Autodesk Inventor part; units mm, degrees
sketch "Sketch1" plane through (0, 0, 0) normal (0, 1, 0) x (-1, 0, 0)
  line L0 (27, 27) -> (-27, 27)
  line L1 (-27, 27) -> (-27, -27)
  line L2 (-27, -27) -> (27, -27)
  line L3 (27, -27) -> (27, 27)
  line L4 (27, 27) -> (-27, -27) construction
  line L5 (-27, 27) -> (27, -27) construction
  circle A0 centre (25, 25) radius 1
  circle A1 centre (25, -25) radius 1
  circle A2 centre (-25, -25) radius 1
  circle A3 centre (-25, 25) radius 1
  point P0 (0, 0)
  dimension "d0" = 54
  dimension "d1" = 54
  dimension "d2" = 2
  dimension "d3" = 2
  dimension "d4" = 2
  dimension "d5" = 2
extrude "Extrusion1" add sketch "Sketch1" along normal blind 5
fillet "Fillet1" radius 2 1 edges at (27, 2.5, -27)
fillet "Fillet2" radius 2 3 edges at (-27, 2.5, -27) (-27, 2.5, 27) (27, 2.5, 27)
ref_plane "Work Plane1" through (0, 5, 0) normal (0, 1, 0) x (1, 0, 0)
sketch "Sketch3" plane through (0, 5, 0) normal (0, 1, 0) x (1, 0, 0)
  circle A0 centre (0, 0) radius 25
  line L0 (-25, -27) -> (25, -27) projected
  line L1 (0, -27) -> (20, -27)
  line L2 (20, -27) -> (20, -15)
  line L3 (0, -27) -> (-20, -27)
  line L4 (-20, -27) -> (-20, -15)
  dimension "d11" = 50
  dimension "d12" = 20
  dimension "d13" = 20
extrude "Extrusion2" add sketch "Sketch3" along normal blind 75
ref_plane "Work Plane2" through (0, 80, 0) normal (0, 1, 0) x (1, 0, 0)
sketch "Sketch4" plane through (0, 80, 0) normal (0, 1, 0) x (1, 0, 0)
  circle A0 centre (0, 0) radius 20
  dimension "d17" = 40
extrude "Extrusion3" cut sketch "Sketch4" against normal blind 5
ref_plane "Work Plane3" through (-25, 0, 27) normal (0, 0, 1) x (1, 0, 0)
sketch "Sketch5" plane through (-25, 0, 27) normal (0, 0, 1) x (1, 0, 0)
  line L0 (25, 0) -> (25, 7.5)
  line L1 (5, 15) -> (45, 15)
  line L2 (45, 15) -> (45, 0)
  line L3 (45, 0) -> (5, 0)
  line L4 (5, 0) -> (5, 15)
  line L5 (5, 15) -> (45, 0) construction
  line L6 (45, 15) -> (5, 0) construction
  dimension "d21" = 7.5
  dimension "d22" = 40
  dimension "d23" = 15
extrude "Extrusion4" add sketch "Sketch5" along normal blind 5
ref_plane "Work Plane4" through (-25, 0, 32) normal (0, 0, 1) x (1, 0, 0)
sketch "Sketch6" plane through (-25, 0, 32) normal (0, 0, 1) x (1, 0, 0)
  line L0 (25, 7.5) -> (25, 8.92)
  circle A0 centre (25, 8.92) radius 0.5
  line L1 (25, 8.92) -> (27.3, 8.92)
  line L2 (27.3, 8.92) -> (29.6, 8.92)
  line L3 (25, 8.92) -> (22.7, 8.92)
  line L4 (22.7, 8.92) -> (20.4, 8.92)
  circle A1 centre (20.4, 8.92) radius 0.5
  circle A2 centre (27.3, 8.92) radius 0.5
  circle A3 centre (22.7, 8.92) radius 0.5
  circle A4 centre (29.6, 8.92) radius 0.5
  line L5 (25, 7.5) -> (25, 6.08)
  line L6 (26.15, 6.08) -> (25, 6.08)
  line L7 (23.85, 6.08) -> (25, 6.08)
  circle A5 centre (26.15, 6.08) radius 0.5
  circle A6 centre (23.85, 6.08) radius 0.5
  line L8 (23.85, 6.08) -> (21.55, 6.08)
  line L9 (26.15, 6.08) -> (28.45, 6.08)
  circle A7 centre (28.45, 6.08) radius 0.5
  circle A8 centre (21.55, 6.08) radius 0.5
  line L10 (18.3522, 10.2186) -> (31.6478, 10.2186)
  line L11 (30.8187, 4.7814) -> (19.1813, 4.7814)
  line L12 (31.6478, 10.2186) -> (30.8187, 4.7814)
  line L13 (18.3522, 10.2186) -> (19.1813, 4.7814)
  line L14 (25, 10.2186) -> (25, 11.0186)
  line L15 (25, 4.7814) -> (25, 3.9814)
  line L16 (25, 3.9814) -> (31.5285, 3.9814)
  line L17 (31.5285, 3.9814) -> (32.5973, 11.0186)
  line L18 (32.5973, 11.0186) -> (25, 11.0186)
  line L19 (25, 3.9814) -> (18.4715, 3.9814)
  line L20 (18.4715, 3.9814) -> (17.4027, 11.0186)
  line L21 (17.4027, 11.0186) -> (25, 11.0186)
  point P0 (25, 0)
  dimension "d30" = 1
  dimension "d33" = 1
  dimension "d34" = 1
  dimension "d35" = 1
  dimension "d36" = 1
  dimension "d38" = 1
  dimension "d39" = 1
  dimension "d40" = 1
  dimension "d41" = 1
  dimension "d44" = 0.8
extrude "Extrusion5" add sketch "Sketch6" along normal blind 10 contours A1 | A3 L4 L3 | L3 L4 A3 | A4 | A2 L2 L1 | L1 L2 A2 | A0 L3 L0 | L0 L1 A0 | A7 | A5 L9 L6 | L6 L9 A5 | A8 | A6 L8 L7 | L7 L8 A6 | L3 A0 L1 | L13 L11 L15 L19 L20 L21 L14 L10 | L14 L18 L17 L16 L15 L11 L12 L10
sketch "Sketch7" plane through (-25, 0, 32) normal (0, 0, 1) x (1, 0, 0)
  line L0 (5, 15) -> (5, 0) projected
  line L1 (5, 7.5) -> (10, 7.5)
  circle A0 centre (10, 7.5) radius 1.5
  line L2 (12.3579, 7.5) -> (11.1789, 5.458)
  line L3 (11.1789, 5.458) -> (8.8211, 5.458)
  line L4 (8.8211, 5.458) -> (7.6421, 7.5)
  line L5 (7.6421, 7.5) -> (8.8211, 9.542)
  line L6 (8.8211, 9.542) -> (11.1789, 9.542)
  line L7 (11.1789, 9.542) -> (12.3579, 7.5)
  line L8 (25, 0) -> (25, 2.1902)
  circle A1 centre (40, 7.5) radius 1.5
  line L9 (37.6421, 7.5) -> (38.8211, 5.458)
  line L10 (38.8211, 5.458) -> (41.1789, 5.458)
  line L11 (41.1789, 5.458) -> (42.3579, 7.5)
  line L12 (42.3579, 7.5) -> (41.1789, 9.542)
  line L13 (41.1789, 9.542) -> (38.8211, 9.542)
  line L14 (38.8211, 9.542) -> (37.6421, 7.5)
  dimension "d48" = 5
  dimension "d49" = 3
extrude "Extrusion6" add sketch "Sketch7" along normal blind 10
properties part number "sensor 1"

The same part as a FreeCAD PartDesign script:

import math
import FreeCAD as App
import Part
import Sketcher
Q = App.Units.Quantity


def edges_at(feature, points):
    """Names of the edges that pass closest to the given points."""
    edges = feature.Shape.Edges
    near = lambda p: min(range(len(edges)), key=lambda i: edges[i].distToShape(Part.Vertex(*p))[0])
    return sorted({f"Edge{near(p) + 1}" for p in points})

doc = App.newDocument("Part")
params = doc.addObject("Spreadsheet::Sheet", "Params")
for row, (alias, value) in enumerate([
    ("sketch1_diameter", "2 mm"),
    ("sketch1_width", "54 mm"),
    ("pad1_length", "5 mm"),
    ("fillet_radius", "2 mm"),
    ("fillet2_radius", "2 mm"),
    ("sketch2_radius", "25 mm"),
    ("sketch2_height", "12 mm"),
    ("pad2_length", "75 mm"),
    ("sketch3_diameter", "40 mm"),
    ("pocket1_length", "5 mm"),
    ("sketch4_width", "40 mm"),
    ("sketch4_height", "15 mm"),
    ("pad3_length", "5 mm"),
    ("sketch5_diameter", "1 mm"),
    ("sketch5_length", "5.5 mm"),
    ("pad4_length", "10 mm"),
    ("sketch6_diameter", "3 mm"),
    ("pad5_length", "10 mm"),
], start=1):
    params.set(f"A{row}", alias)
    params.set(f"B{row}", "=" + value)
    params.setAlias(f"B{row}", alias)

body = doc.addObject("PartDesign::Body", "Body")

# Sketch on XZ plane
sketch1 = body.newObject("Sketcher::SketchObject", "Sketch")
sketch1.AttachmentSupport = (doc.getObject("XZ_Plane"), [""])
sketch1.MapMode = "FlatFace"
sketch1.addGeometry(Part.LineSegment(App.Vector(-27, -27, 0), App.Vector(-27, 27, 0)), False)
sketch1.addGeometry(Part.LineSegment(App.Vector(-27, 27, 0), App.Vector(27, 27, 0)), False)
sketch1.addGeometry(Part.LineSegment(App.Vector(27, 27, 0), App.Vector(27, -27, 0)), False)
sketch1.addGeometry(Part.LineSegment(App.Vector(27, -27, 0), App.Vector(-27, -27, 0)), False)
sketch1.addGeometry(Part.Circle(App.Vector(25, -25, 0), App.Vector(0, 0, 1), 1), False)
sketch1.addGeometry(Part.Circle(App.Vector(-25, -25, 0), App.Vector(0, 0, 1), 1), False)
sketch1.addGeometry(Part.Circle(App.Vector(25, 25, 0), App.Vector(0, 0, 1), 1), False)
sketch1.addGeometry(Part.Circle(App.Vector(-25, 25, 0), App.Vector(0, 0, 1), 1), False)
sketch1.addConstraint(Sketcher.Constraint("Coincident", 0, 2, 1, 1))
sketch1.addConstraint(Sketcher.Constraint("Coincident", 1, 2, 2, 1))
sketch1.addConstraint(Sketcher.Constraint("Coincident", 2, 2, 3, 1))
sketch1.addConstraint(Sketcher.Constraint("Coincident", 3, 2, 0, 1))
sketch1.addConstraint(Sketcher.Constraint("Vertical", 0))
sketch1.addConstraint(Sketcher.Constraint("Horizontal", 1))
sketch1.addConstraint(Sketcher.Constraint("Vertical", 2))
sketch1.addConstraint(Sketcher.Constraint("Horizontal", 3))
sketch1.addConstraint(Sketcher.Constraint("Equal", 4, 5))
sketch1.addConstraint(Sketcher.Constraint("Equal", 5, 6))
sketch1.addConstraint(Sketcher.Constraint("Equal", 6, 7))
sketch1.addConstraint(Sketcher.Constraint("Symmetric", 5, 3, 6, 3, -1, 1))
sketch1.addConstraint(Sketcher.Constraint("Symmetric", 4, 3, 7, 3, -1, 1))
sketch1.addConstraint(Sketcher.Constraint("Symmetric", 0, 2, 2, 2, -1, 1))
sketch1.addConstraint(Sketcher.Constraint("Symmetric", 4, 3, 5, 3, -2))
sketch1.addConstraint(Sketcher.Constraint("Equal", 3, 0))
sketch1.addConstraint(Sketcher.Constraint("Diameter", 4, Q("2 mm")))
sketch1.addConstraint(Sketcher.Constraint("DistanceX", 1, 1, 1, 2, Q("54 mm")))
sketch1.addConstraint(Sketcher.Constraint("DistanceX", 0, 2, 7, 3, Q("2 mm")))
sketch1.addConstraint(Sketcher.Constraint("DistanceY", 7, 3, 0, 2, Q("2 mm")))
sketch1.setExpression("Constraints[16]", "Params.sketch1_diameter")
sketch1.setExpression("Constraints[17]", "Params.sketch1_width")
pad1 = body.newObject("PartDesign::Pad", "Pad")
pad1.Profile = sketch1
pad1.setExpression("Length", "Params.pad1_length")
pad1.Reversed = True
doc.recompute()

fillet = body.newObject("PartDesign::Fillet", "Fillet")
fillet.Base = (pad1, edges_at(pad1, [(27, 2.5, -27)]))
fillet.setExpression("Radius", "Params.fillet_radius")
doc.recompute()

fillet2 = body.newObject("PartDesign::Fillet", "Fillet001")
fillet2.Base = (fillet, edges_at(fillet, [(-27, 2.5, -27), (-27, 2.5, 27), (27, 2.5, 27)]))
fillet2.setExpression("Radius", "Params.fillet2_radius")

# Sketch on XZ plane
sketch2 = body.newObject("Sketcher::SketchObject", "Sketch001")
sketch2.AttachmentSupport = (doc.getObject("XZ_Plane"), [""])
sketch2.MapMode = "FlatFace"
sketch2.AttachmentOffset = App.Placement(App.Vector(0, 0, -5), App.Rotation())
sketch2.addGeometry(Part.ArcOfCircle(Part.Circle(App.Vector(0, 0, 0), App.Vector(0, 0, 1), 25), math.radians(143), math.radians(397)), False)
sketch2.addGeometry(Part.LineSegment(App.Vector(-20, 15, 0), App.Vector(-20, 27, 0)), False)
sketch2.addGeometry(Part.LineSegment(App.Vector(-20, 27, 0), App.Vector(20, 27, 0)), False)
sketch2.addGeometry(Part.LineSegment(App.Vector(20, 27, 0), App.Vector(20, 15, 0)), False)
sketch2.addConstraint(Sketcher.Constraint("Coincident", 0, 1, 1, 1))
sketch2.addConstraint(Sketcher.Constraint("Coincident", 1, 2, 2, 1))
sketch2.addConstraint(Sketcher.Constraint("Coincident", 2, 2, 3, 1))
sketch2.addConstraint(Sketcher.Constraint("Coincident", 3, 2, 0, 2))
sketch2.addConstraint(Sketcher.Constraint("Vertical", 1))
sketch2.addConstraint(Sketcher.Constraint("Horizontal", 2))
sketch2.addConstraint(Sketcher.Constraint("Vertical", 3))
sketch2.addConstraint(Sketcher.Constraint("Coincident", 0, 3, -1, 1))
sketch2.addConstraint(Sketcher.Constraint("Horizontal", 0, 1, 3, 2))
sketch2.addConstraint(Sketcher.Constraint("Radius", 0, Q("25 mm")))
sketch2.addConstraint(Sketcher.Constraint("DistanceX", 0, 1, -1, 1, Q("20 mm")))
sketch2.addConstraint(Sketcher.Constraint("DistanceY", 1, 1, 1, 2, Q("12 mm")))
sketch2.setExpression("Constraints[9]", "Params.sketch2_radius")
sketch2.setExpression("Constraints[11]", "Params.sketch2_height")
pad2 = body.newObject("PartDesign::Pad", "Pad001")
pad2.Profile = sketch2
pad2.setExpression("Length", "Params.pad2_length")
pad2.Reversed = True

# Sketch on XZ plane
sketch3 = body.newObject("Sketcher::SketchObject", "Sketch002")
sketch3.AttachmentSupport = (doc.getObject("XZ_Plane"), [""])
sketch3.MapMode = "FlatFace"
sketch3.AttachmentOffset = App.Placement(App.Vector(0, 0, -80), App.Rotation())
sketch3.addGeometry(Part.Circle(App.Vector(0, 0, 0), App.Vector(0, 0, 1), 20), False)
sketch3.addConstraint(Sketcher.Constraint("Coincident", 0, 3, -1, 1))
sketch3.addConstraint(Sketcher.Constraint("Diameter", 0, Q("40 mm")))
sketch3.setExpression("Constraints[1]", "Params.sketch3_diameter")
pocket1 = body.newObject("PartDesign::Pocket", "Pocket")
pocket1.Profile = sketch3
pocket1.setExpression("Length", "Params.pocket1_length")
pocket1.Reversed = True

# Sketch on XY plane
sketch4 = body.newObject("Sketcher::SketchObject", "Sketch003")
sketch4.AttachmentSupport = (doc.getObject("XY_Plane"), [""])
sketch4.MapMode = "FlatFace"
sketch4.AttachmentOffset = App.Placement(App.Vector(0, 0, 27), App.Rotation())
sketch4.addGeometry(Part.LineSegment(App.Vector(20, 15, 0), App.Vector(-20, 15, 0)), False)
sketch4.addGeometry(Part.LineSegment(App.Vector(-20, 15, 0), App.Vector(-20, 0, 0)), False)
sketch4.addGeometry(Part.LineSegment(App.Vector(-20, 0, 0), App.Vector(20, 0, 0)), False)
sketch4.addGeometry(Part.LineSegment(App.Vector(20, 0, 0), App.Vector(20, 15, 0)), False)
sketch4.addConstraint(Sketcher.Constraint("Coincident", 0, 2, 1, 1))
sketch4.addConstraint(Sketcher.Constraint("Coincident", 1, 2, 2, 1))
sketch4.addConstraint(Sketcher.Constraint("Coincident", 2, 2, 3, 1))
sketch4.addConstraint(Sketcher.Constraint("Coincident", 3, 2, 0, 1))
sketch4.addConstraint(Sketcher.Constraint("Horizontal", 0))
sketch4.addConstraint(Sketcher.Constraint("Vertical", 1))
sketch4.addConstraint(Sketcher.Constraint("Horizontal", 2))
sketch4.addConstraint(Sketcher.Constraint("Vertical", 3))
sketch4.addConstraint(Sketcher.Constraint("Symmetric", 1, 2, 2, 2, -1, 1))
sketch4.addConstraint(Sketcher.Constraint("DistanceX", 0, 2, 0, 1, Q("40 mm")))
sketch4.addConstraint(Sketcher.Constraint("DistanceY", 1, 2, 1, 1, Q("15 mm")))
sketch4.setExpression("Constraints[9]", "Params.sketch4_width")
sketch4.setExpression("Constraints[10]", "Params.sketch4_height")
pad3 = body.newObject("PartDesign::Pad", "Pad002")
pad3.Profile = sketch4
pad3.setExpression("Length", "Params.pad3_length")

# Sketch on XY plane
sketch5 = body.newObject("Sketcher::SketchObject", "Sketch004")
sketch5.AttachmentSupport = (doc.getObject("XY_Plane"), [""])
sketch5.MapMode = "FlatFace"
sketch5.AttachmentOffset = App.Placement(App.Vector(0, 0, 32), App.Rotation())
sketch5.addGeometry(Part.Circle(App.Vector(-4.6, 8.9, 0), App.Vector(0, 0, 1), 0.5), False)
sketch5.addGeometry(Part.Circle(App.Vector(-2.3, 8.9, 0), App.Vector(0, 0, 1), 0.5), False)
sketch5.addGeometry(Part.Circle(App.Vector(4.6, 8.9, 0), App.Vector(0, 0, 1), 0.5), False)
sketch5.addGeometry(Part.Circle(App.Vector(2.3, 8.9, 0), App.Vector(0, 0, 1), 0.5), False)
sketch5.addGeometry(Part.Circle(App.Vector(0, 8.9, 0), App.Vector(0, 0, 1), 0.5), False)
sketch5.addGeometry(Part.Circle(App.Vector(3.5, 6.1, 0), App.Vector(0, 0, 1), 0.5), False)
sketch5.addGeometry(Part.Circle(App.Vector(1.1, 6.1, 0), App.Vector(0, 0, 1), 0.5), False)
sketch5.addGeometry(Part.Circle(App.Vector(-3.5, 6.1, 0), App.Vector(0, 0, 1), 0.5), False)
sketch5.addGeometry(Part.Circle(App.Vector(-1.1, 6.1, 0), App.Vector(0, 0, 1), 0.5), False)
sketch5.addGeometry(Part.LineSegment(App.Vector(-6.5, 4, 0), App.Vector(6.5, 4, 0)), False)
sketch5.addGeometry(Part.LineSegment(App.Vector(6.5, 4, 0), App.Vector(7.6, 11, 0)), False)
sketch5.addGeometry(Part.LineSegment(App.Vector(7.6, 11, 0), App.Vector(-7.6, 11, 0)), False)
sketch5.addGeometry(Part.LineSegment(App.Vector(-7.6, 11, 0), App.Vector(-6.5, 4, 0)), False)
sketch5.addGeometry(Part.LineSegment(App.Vector(-5.8, 4.8, 0), App.Vector(-6.6, 10.2, 0)), False)
sketch5.addGeometry(Part.LineSegment(App.Vector(-6.6, 10.2, 0), App.Vector(6.6, 10.2, 0)), False)
sketch5.addGeometry(Part.LineSegment(App.Vector(6.6, 10.2, 0), App.Vector(5.8, 4.8, 0)), False)
sketch5.addGeometry(Part.LineSegment(App.Vector(5.8, 4.8, 0), App.Vector(-5.8, 4.8, 0)), False)
sketch5.addConstraint(Sketcher.Constraint("Coincident", 9, 2, 10, 1))
sketch5.addConstraint(Sketcher.Constraint("Coincident", 10, 2, 11, 1))
sketch5.addConstraint(Sketcher.Constraint("Coincident", 11, 2, 12, 1))
sketch5.addConstraint(Sketcher.Constraint("Coincident", 12, 2, 9, 1))
sketch5.addConstraint(Sketcher.Constraint("Coincident", 13, 2, 14, 1))
sketch5.addConstraint(Sketcher.Constraint("Coincident", 14, 2, 15, 1))
sketch5.addConstraint(Sketcher.Constraint("Coincident", 15, 2, 16, 1))
sketch5.addConstraint(Sketcher.Constraint("Coincident", 16, 2, 13, 1))
sketch5.addConstraint(Sketcher.Constraint("Horizontal", 9))
sketch5.addConstraint(Sketcher.Constraint("Horizontal", 11))
sketch5.addConstraint(Sketcher.Constraint("Horizontal", 14))
sketch5.addConstraint(Sketcher.Constraint("Horizontal", 16))
sketch5.addConstraint(Sketcher.Constraint("Equal", 0, 1))
sketch5.addConstraint(Sketcher.Constraint("Equal", 1, 2))
sketch5.addConstraint(Sketcher.Constraint("Equal", 2, 3))
sketch5.addConstraint(Sketcher.Constraint("Equal", 3, 4))
sketch5.addConstraint(Sketcher.Constraint("Equal", 4, 5))
sketch5.addConstraint(Sketcher.Constraint("Equal", 5, 6))
sketch5.addConstraint(Sketcher.Constraint("Equal", 6, 7))
sketch5.addConstraint(Sketcher.Constraint("Equal", 7, 8))
sketch5.addConstraint(Sketcher.Constraint("Symmetric", 0, 3, 2, 3, -2))
sketch5.addConstraint(Sketcher.Constraint("Symmetric", 1, 3, 3, 3, -2))
sketch5.addConstraint(Sketcher.Constraint("Symmetric", 5, 3, 7, 3, -2))
sketch5.addConstraint(Sketcher.Constraint("Symmetric", 6, 3, 8, 3, -2))
sketch5.addConstraint(Sketcher.Constraint("PointOnObject", 4, 3, -2))
sketch5.addConstraint(Sketcher.Constraint("Horizontal", 0, 3, 1, 3))
sketch5.addConstraint(Sketcher.Constraint("Horizontal", 3, 3, 4, 3))
sketch5.addConstraint(Sketcher.Constraint("Horizontal", 5, 3, 6, 3))
sketch5.addConstraint(Sketcher.Constraint("Equal", 10, 12))
sketch5.addConstraint(Sketcher.Constraint("Equal", 13, 15))
sketch5.addConstraint(Sketcher.Constraint("Diameter", 0, Q("1 mm")))
sketch5.addConstraint(Sketcher.Constraint("DistanceY", 13, 2, 11, 2, Q("0.8 mm")))
sketch5.addConstraint(Sketcher.Constraint("DistanceY", 9, 2, 15, 2, Q("0.8 mm")))
sketch5.addConstraint(Sketcher.Constraint("Distance", 13, Q("5.5 mm")))
sketch5.addConstraint(Sketcher.Constraint("DistanceX", 0, 3, -1, 1, Q("4.6 mm")))
sketch5.addConstraint(Sketcher.Constraint("DistanceX", 1, 3, -1, 1, Q("2.3 mm")))
sketch5.addConstraint(Sketcher.Constraint("Angle", 13, Q("98.67 deg")))
sketch5.addConstraint(Sketcher.Constraint("DistanceX", 6, 3, 5, 3, Q("2.3 mm")))
sketch5.addConstraint(Sketcher.Constraint("DistanceX", 7, 3, 6, 3, Q("4.6 mm")))
sketch5.addConstraint(Sketcher.Constraint("DistanceX", 9, 1, 9, 2, Q("13.057 mm")))
sketch5.addConstraint(Sketcher.Constraint("DistanceY", -1, 1, 0, 3, Q("8.92 mm")))
sketch5.addConstraint(Sketcher.Constraint("DistanceY", -1, 1, 5, 3, Q("6.08 mm")))
sketch5.addConstraint(Sketcher.Constraint("Distance", 10, Q("7.118 mm")))
sketch5.addConstraint(Sketcher.Constraint("DistanceX", 14, 1, 14, 2, Q("13.2956 mm")))
sketch5.addConstraint(Sketcher.Constraint("DistanceX", -1, 1, 9, 2, Q("6.5285 mm")))
sketch5.addConstraint(Sketcher.Constraint("DistanceY", -1, 1, 9, 2, Q("3.9814 mm")))
sketch5.addConstraint(Sketcher.Constraint("DistanceX", 13, 2, -1, 1, Q("6.6478 mm")))
sketch5.setExpression("Constraints[30]", "Params.sketch5_diameter")
sketch5.setExpression("Constraints[33]", "Params.sketch5_length")
pad4 = body.newObject("PartDesign::Pad", "Pad003")
pad4.Profile = sketch5
pad4.setExpression("Length", "Params.pad4_length")

# Sketch on XY plane
sketch6 = body.newObject("Sketcher::SketchObject", "Sketch005")
sketch6.AttachmentSupport = (doc.getObject("XY_Plane"), [""])
sketch6.MapMode = "FlatFace"
sketch6.AttachmentOffset = App.Placement(App.Vector(0, 0, 32), App.Rotation())
sketch6.addGeometry(Part.LineSegment(App.Vector(-16.2, 9.5, 0), App.Vector(-17.4, 7.5, 0)), False)
sketch6.addGeometry(Part.LineSegment(App.Vector(-17.4, 7.5, 0), App.Vector(-16.2, 5.5, 0)), False)
sketch6.addGeometry(Part.LineSegment(App.Vector(-16.2, 5.5, 0), App.Vector(-13.8, 5.5, 0)), False)
sketch6.addGeometry(Part.LineSegment(App.Vector(-13.8, 5.5, 0), App.Vector(-12.6, 7.5, 0)), False)
sketch6.addGeometry(Part.LineSegment(App.Vector(-12.6, 7.5, 0), App.Vector(-13.8, 9.5, 0)), False)
sketch6.addGeometry(Part.LineSegment(App.Vector(-13.8, 9.5, 0), App.Vector(-16.2, 9.5, 0)), False)
sketch6.addGeometry(Part.Circle(App.Vector(-15, 7.5, 0), App.Vector(0, 0, 1), 1.5), False)
sketch6.addGeometry(Part.LineSegment(App.Vector(13.8, 9.5, 0), App.Vector(12.6, 7.5, 0)), False)
sketch6.addGeometry(Part.LineSegment(App.Vector(12.6, 7.5, 0), App.Vector(13.8, 5.5, 0)), False)
sketch6.addGeometry(Part.LineSegment(App.Vector(13.8, 5.5, 0), App.Vector(16.2, 5.5, 0)), False)
sketch6.addGeometry(Part.LineSegment(App.Vector(16.2, 5.5, 0), App.Vector(17.4, 7.5, 0)), False)
sketch6.addGeometry(Part.LineSegment(App.Vector(17.4, 7.5, 0), App.Vector(16.2, 9.5, 0)), False)
sketch6.addGeometry(Part.LineSegment(App.Vector(16.2, 9.5, 0), App.Vector(13.8, 9.5, 0)), False)
sketch6.addGeometry(Part.Circle(App.Vector(15, 7.5, 0), App.Vector(0, 0, 1), 1.5), False)
sketch6.addConstraint(Sketcher.Constraint("Coincident", 0, 2, 1, 1))
sketch6.addConstraint(Sketcher.Constraint("Coincident", 1, 2, 2, 1))
sketch6.addConstraint(Sketcher.Constraint("Coincident", 2, 2, 3, 1))
sketch6.addConstraint(Sketcher.Constraint("Coincident", 3, 2, 4, 1))
sketch6.addConstraint(Sketcher.Constraint("Coincident", 4, 2, 5, 1))
sketch6.addConstraint(Sketcher.Constraint("Coincident", 5, 2, 0, 1))
sketch6.addConstraint(Sketcher.Constraint("Coincident", 7, 2, 8, 1))
sketch6.addConstraint(Sketcher.Constraint("Coincident", 8, 2, 9, 1))
sketch6.addConstraint(Sketcher.Constraint("Coincident", 9, 2, 10, 1))
sketch6.addConstraint(Sketcher.Constraint("Coincident", 10, 2, 11, 1))
sketch6.addConstraint(Sketcher.Constraint("Coincident", 11, 2, 12, 1))
sketch6.addConstraint(Sketcher.Constraint("Coincident", 12, 2, 7, 1))
sketch6.addConstraint(Sketcher.Constraint("Horizontal", 2))
sketch6.addConstraint(Sketcher.Constraint("Horizontal", 5))
sketch6.addConstraint(Sketcher.Constraint("Horizontal", 9))
sketch6.addConstraint(Sketcher.Constraint("Horizontal", 12))
sketch6.addConstraint(Sketcher.Constraint("Equal", 6, 13))
sketch6.addConstraint(Sketcher.Constraint("Symmetric", 6, 3, 13, 3, -2))
sketch6.addConstraint(Sketcher.Constraint("Symmetric", 3, 2, 7, 2, -2))
sketch6.addConstraint(Sketcher.Constraint("Symmetric", 2, 2, 8, 2, -2))
sketch6.addConstraint(Sketcher.Constraint("Symmetric", 0, 2, 10, 2, -2))
sketch6.addConstraint(Sketcher.Constraint("Symmetric", 5, 2, 11, 2, -2))
sketch6.addConstraint(Sketcher.Constraint("Parallel", 0, 3))
sketch6.addConstraint(Sketcher.Constraint("Parallel", 1, 4))
sketch6.addConstraint(Sketcher.Constraint("Parallel", 3, 7))
sketch6.addConstraint(Sketcher.Constraint("Parallel", 4, 8))
sketch6.addConstraint(Sketcher.Constraint("Parallel", 7, 10))
sketch6.addConstraint(Sketcher.Constraint("Horizontal", 13, 3, 0, 2))
sketch6.addConstraint(Sketcher.Constraint("Horizontal", 0, 2, 3, 2))
sketch6.addConstraint(Sketcher.Constraint("Vertical", 2, 2, 4, 2))
sketch6.addConstraint(Sketcher.Constraint("Diameter", 6, Q("3 mm")))
sketch6.addConstraint(Sketcher.Constraint("Angle", 0, Q("-120.001 deg")))
sketch6.addConstraint(Sketcher.Constraint("DistanceX", 6, 3, -1, 1, Q("15 mm")))
sketch6.addConstraint(Sketcher.Constraint("DistanceX", 2, 2, 9, 2, Q("30 mm")))
sketch6.addConstraint(Sketcher.Constraint("DistanceY", -1, 1, 6, 3, Q("7.5 mm")))
sketch6.addConstraint(Sketcher.Constraint("Distance", 0, Q("2.358 mm")))
sketch6.addConstraint(Sketcher.Constraint("DistanceX", 2, 1, 2, 2, Q("2.3578 mm")))
sketch6.setExpression("Constraints[30]", "Params.sketch6_diameter")
pad5 = body.newObject("PartDesign::Pad", "Pad004")
pad5.Profile = sketch6
pad5.setExpression("Length", "Params.pad5_length")

doc.recompute()
